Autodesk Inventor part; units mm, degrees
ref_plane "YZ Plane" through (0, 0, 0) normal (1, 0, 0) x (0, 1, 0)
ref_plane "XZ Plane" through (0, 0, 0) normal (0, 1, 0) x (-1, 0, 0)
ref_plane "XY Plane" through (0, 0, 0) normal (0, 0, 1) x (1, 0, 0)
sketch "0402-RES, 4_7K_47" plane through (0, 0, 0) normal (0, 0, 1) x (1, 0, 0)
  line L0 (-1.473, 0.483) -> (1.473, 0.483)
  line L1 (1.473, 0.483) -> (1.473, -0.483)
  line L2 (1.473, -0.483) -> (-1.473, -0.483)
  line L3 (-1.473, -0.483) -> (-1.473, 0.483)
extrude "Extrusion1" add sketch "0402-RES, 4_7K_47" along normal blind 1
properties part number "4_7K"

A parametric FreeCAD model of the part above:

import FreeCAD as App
import Part
import Sketcher

doc = App.newDocument("Part")
params = doc.addObject("Spreadsheet::Sheet", "Params")
for row, (alias, value) in enumerate([
    ("pad1_length", "1 mm"),
], start=1):
    params.set(f"A{row}", alias)
    params.set(f"B{row}", "=" + value)
    params.setAlias(f"B{row}", alias)

body = doc.addObject("PartDesign::Body", "Body")

sketch1 = body.newObject("Sketcher::SketchObject", "Sketch")
sketch1.AttachmentSupport = (doc.getObject("XY_Plane"), [""])
sketch1.MapMode = "FlatFace"
sketch1.addGeometry([
    Part.LineSegment(App.Vector(1.473, 0.483, 0), App.Vector(-1.473, 0.483, 0)),
    Part.LineSegment(App.Vector(-1.473, 0.483, 0), App.Vector(-1.473, -0.483, 0)),
    Part.LineSegment(App.Vector(-1.473, -0.483, 0), App.Vector(1.473, -0.483, 0)),
    Part.LineSegment(App.Vector(1.473, -0.483, 0), App.Vector(1.473, 0.483, 0)),
], False)
sketch1.addConstraint([
    Sketcher.Constraint("Coincident", 0, 2, 1, 1),
    Sketcher.Constraint("Coincident", 1, 2, 2, 1),
    Sketcher.Constraint("Coincident", 2, 2, 3, 1),
    Sketcher.Constraint("Coincident", 3, 2, 0, 1),
    Sketcher.Constraint("Horizontal", 0),
    Sketcher.Constraint("Vertical", 1),
    Sketcher.Constraint("Horizontal", 2),
    Sketcher.Constraint("Vertical", 3),
    Sketcher.Constraint("Symmetric", 0, 2, 2, 2, -1, 1),
    Sketcher.Constraint("DistanceX", 0, 2, 0, 1, 2.946),
    Sketcher.Constraint("DistanceY", 1, 2, 1, 1, 0.966),
])
pad1 = body.newObject("PartDesign::Pad", "Pad")
pad1.Profile = sketch1
pad1.setExpression("Length", "Params.pad1_length")

doc.recompute()
